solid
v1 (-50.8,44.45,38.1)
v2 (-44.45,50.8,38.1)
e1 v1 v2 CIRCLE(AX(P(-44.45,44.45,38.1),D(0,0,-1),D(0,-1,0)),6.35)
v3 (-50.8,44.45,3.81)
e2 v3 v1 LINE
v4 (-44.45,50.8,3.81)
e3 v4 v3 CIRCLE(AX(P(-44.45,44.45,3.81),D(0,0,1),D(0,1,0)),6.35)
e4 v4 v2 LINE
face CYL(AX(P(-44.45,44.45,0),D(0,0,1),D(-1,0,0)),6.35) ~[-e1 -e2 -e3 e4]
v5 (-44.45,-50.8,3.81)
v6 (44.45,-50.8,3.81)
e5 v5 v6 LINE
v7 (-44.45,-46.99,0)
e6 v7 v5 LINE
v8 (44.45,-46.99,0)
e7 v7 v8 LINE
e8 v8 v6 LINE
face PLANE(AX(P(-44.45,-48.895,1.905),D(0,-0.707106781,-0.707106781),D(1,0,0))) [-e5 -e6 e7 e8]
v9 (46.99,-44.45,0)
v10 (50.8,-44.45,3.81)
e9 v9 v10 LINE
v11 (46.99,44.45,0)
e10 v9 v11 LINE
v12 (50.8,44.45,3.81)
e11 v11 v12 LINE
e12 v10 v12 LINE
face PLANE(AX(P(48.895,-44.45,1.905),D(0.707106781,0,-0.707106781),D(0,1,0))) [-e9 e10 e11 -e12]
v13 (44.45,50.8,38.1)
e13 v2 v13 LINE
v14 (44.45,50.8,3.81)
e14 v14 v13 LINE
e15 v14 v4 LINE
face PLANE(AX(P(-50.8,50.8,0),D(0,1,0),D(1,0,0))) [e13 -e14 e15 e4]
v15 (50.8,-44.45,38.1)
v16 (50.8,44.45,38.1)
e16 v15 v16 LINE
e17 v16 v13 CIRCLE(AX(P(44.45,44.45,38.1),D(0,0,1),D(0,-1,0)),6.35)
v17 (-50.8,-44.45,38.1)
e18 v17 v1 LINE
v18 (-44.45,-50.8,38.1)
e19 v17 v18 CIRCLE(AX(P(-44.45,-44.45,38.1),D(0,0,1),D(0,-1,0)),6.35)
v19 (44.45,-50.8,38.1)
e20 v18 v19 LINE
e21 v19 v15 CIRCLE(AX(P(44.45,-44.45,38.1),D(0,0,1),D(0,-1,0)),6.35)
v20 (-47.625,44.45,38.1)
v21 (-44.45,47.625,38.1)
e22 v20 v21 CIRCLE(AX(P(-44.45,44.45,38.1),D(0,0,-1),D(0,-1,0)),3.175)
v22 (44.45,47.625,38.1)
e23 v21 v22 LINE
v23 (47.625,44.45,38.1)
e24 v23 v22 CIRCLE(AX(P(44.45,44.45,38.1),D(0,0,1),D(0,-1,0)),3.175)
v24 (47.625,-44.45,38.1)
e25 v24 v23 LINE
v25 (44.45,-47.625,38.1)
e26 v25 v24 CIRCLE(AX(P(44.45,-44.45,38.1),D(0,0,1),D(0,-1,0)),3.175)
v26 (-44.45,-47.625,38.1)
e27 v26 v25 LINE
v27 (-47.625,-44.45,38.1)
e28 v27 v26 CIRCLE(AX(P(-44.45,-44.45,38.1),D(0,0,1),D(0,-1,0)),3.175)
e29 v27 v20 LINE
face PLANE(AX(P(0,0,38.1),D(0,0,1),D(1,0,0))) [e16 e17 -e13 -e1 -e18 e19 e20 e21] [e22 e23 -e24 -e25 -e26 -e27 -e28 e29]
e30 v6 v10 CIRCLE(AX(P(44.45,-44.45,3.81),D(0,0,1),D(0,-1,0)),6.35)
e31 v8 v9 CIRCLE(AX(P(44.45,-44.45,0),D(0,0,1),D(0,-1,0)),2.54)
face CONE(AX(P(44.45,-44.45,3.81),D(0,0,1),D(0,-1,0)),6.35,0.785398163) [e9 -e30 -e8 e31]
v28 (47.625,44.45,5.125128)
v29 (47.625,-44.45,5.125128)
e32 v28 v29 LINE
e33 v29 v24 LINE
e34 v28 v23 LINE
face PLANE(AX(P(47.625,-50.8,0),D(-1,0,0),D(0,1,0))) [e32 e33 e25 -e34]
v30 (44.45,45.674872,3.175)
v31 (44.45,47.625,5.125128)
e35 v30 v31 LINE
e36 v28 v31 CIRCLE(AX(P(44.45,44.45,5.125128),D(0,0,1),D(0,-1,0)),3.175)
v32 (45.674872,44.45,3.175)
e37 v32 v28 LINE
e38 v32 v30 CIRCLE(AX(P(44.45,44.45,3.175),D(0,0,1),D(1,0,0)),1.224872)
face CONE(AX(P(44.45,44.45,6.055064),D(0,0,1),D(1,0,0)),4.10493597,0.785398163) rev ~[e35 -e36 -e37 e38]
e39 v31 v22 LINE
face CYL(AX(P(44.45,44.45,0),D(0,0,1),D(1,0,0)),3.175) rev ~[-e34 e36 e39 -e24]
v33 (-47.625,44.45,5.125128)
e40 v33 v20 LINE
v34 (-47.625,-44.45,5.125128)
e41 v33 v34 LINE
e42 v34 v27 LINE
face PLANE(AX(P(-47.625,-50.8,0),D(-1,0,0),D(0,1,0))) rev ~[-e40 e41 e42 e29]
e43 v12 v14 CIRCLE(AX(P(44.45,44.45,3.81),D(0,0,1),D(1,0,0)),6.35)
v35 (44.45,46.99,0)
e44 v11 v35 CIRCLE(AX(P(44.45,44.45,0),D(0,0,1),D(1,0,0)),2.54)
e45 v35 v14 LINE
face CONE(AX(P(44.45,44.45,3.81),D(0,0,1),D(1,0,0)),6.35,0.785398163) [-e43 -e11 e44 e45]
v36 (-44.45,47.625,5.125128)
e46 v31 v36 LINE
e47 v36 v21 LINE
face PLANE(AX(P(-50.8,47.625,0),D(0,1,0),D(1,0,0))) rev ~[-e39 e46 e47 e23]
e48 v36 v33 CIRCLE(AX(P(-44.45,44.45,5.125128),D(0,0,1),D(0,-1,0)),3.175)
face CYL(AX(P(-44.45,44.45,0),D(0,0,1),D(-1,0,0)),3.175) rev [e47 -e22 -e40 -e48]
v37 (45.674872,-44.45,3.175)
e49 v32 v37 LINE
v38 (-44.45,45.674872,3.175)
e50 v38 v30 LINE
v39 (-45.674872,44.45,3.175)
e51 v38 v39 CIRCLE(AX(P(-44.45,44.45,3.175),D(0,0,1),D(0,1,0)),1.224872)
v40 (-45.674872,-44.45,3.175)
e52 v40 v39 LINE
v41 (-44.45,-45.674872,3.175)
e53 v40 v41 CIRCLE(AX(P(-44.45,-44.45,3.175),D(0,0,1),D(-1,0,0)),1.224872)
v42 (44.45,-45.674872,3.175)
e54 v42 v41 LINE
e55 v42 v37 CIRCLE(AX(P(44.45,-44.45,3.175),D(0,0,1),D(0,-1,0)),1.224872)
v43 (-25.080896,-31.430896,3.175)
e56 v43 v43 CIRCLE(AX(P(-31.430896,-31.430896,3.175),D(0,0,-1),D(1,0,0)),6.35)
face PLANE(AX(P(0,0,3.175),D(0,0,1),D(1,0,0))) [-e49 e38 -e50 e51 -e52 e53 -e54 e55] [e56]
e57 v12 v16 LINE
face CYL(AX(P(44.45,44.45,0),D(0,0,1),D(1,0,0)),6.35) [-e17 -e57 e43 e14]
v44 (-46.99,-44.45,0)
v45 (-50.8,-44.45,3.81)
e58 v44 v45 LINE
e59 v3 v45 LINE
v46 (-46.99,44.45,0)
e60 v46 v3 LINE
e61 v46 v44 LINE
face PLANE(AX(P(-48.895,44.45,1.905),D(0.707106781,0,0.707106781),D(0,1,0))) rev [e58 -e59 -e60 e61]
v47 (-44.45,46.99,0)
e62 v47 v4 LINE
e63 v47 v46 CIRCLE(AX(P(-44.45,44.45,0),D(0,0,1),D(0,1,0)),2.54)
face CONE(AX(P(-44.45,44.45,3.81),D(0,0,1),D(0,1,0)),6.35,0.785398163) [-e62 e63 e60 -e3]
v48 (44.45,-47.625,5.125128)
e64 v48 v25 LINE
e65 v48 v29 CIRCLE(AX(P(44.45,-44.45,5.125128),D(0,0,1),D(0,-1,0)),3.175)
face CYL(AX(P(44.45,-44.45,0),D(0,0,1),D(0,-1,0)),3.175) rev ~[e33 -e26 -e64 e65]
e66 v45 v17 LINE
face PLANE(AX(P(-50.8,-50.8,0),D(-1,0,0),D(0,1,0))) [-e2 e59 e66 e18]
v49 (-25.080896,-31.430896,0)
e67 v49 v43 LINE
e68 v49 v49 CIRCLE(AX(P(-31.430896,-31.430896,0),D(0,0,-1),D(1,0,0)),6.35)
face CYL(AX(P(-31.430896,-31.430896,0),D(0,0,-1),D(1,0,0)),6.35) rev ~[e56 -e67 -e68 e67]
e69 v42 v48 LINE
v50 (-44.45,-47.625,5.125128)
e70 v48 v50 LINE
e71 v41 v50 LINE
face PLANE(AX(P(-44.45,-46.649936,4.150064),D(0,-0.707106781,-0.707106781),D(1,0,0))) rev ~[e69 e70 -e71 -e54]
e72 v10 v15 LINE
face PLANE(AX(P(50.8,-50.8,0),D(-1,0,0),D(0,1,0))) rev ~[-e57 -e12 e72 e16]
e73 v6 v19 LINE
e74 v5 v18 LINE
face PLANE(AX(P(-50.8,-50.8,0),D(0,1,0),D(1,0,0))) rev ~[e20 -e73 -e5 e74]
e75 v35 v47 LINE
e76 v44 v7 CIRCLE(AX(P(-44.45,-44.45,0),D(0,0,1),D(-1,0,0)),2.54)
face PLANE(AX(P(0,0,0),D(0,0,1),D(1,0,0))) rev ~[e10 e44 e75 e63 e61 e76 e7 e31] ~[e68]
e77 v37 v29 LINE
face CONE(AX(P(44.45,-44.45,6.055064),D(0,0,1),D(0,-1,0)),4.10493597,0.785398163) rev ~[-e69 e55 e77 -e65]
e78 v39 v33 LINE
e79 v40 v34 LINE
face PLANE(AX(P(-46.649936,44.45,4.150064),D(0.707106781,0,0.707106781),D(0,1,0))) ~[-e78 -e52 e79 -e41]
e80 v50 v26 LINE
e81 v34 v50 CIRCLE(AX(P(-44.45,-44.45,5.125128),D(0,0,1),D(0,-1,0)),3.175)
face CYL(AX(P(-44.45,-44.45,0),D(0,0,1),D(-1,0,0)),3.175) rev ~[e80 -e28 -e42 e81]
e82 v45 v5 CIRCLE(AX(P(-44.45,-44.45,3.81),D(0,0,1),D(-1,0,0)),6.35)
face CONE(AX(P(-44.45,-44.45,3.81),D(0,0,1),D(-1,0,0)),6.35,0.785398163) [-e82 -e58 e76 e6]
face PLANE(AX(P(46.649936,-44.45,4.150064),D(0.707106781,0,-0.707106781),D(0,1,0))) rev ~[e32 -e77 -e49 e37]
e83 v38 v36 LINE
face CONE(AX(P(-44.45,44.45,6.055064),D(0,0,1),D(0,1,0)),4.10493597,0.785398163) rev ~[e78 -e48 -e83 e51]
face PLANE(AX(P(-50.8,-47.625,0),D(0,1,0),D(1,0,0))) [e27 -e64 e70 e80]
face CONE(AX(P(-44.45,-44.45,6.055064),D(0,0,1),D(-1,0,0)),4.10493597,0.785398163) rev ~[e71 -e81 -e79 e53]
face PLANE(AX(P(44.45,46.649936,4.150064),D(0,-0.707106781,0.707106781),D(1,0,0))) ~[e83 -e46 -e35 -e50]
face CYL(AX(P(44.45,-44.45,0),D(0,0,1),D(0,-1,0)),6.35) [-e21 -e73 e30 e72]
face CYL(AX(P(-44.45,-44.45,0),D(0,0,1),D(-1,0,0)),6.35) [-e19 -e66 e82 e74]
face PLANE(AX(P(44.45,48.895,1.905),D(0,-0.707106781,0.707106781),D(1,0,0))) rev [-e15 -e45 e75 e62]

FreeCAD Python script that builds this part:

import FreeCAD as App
import Part
import Sketcher

V = App.Vector
Q = App.Units.Quantity


def edges_at(feature, points):
    """Names of the edges that pass closest to the given points."""
    edges = feature.Shape.Edges
    near = lambda p: min(range(len(edges)), key=lambda i: edges[i].distToShape(Part.Vertex(*p))[0])
    return sorted({f"Edge{near(p) + 1}" for p in points})


def faces_at(feature, points):
    """Names of the faces that lie closest to the given points."""
    faces = feature.Shape.Faces
    near = lambda p: min(range(len(faces)), key=lambda i: faces[i].distToShape(Part.Vertex(*p))[0])
    return sorted({f"Face{near(p) + 1}" for p in points})

doc = App.newDocument("Part")
params = doc.addObject("Spreadsheet::Sheet", "Params")
for row, (alias, value) in enumerate([
    ("sketch1_width", "4 in"),
    ("pad1_length", "1.5 in"),
    ("fillet_radius", "0.25 in"),
    ("chamfer_size", "0.15 in"),
    ("thickness_wall", "0.125 in"),
    ("sketch2_diameter", "0.5 in"),
], start=1):
    params.set(f"A{row}", alias)
    params.set(f"B{row}", "=" + value)
    params.setAlias(f"B{row}", alias)

body = doc.addObject("PartDesign::Body", "Body")

# Sketch on XY plane
sketch1 = doc.addObject("Sketcher::SketchObject", "Sketch")
body.addObject(sketch1)
sketch1.AttachmentSupport = (doc.XY_Plane, [""])
sketch1.MapMode = "FlatFace"
sketch1.addGeometry([
    Part.LineSegment(V(-51, 51, 0), V(-51, -51, 0)),
    Part.LineSegment(V(-51, -51, 0), V(51, -51, 0)),
    Part.LineSegment(V(51, -51, 0), V(51, 51, 0)),
    Part.LineSegment(V(51, 51, 0), V(-51, 51, 0)),
], False)
sketch1.addConstraint([
    Sketcher.Constraint("Coincident", 0, 2, 1, 1),
    Sketcher.Constraint("Coincident", 1, 2, 2, 1),
    Sketcher.Constraint("Coincident", 2, 2, 3, 1),
    Sketcher.Constraint("Coincident", 3, 2, 0, 1),
    Sketcher.Constraint("Vertical", 0),
    Sketcher.Constraint("Horizontal", 1),
    Sketcher.Constraint("Vertical", 2),
    Sketcher.Constraint("Horizontal", 3),
    Sketcher.Constraint("Symmetric", 0, 2, 2, 2, -1, 1),
    Sketcher.Constraint("Equal", 3, 0),
    Sketcher.Constraint("DistanceX", 1, 1, 1, 2, Q("4 in")),
])
sketch1.setExpression("Constraints[10]", "Params.sketch1_width")
pad1 = doc.addObject("PartDesign::Pad", "Pad")
body.addObject(pad1)
pad1.Profile = sketch1
pad1.setExpression("Length", "Params.pad1_length")
doc.recompute()

fillet = doc.addObject("PartDesign::Fillet", "Fillet")
body.addObject(fillet)
fillet.Base = (pad1, edges_at(pad1, [
    (50.8, -50.8, 19.05),
    (50.8, 50.8, 19.05),
    (-50.8, 50.8, 19.05),
    (-50.8, -50.8, 19.05),
]))
fillet.setExpression("Radius", "Params.fillet_radius")
doc.recompute()

chamfer = doc.addObject("PartDesign::Chamfer", "Chamfer")
body.addObject(chamfer)
chamfer.Base = (fillet, edges_at(fillet, [(50.8, 0, 0)]))
chamfer.setExpression("Size", "Params.chamfer_size")
doc.recompute()

thickness = doc.addObject("PartDesign::Thickness", "Thickness")
body.addObject(thickness)
thickness.Base = (chamfer, faces_at(chamfer, [(0, 0, 38.1)]))
thickness.setExpression("Value", "Params.thickness_wall")
thickness.Reversed = True
thickness.Join = "Arc"

# Sketch on XY plane
sketch2 = doc.addObject("Sketcher::SketchObject", "Sketch001")
body.addObject(sketch2)
sketch2.AttachmentSupport = (doc.XY_Plane, [""])
sketch2.MapMode = "FlatFace"
sketch2.addGeometry(Part.Circle(V(-31, -31, 0), V(0, 0, 1), 6), False)
sketch2.addConstraint([
    Sketcher.Constraint("Diameter", 0, Q("0.5 in")),
    Sketcher.Constraint("DistanceX", 0, 3, -1, 1, Q("31.430896 mm")),
    Sketcher.Constraint("DistanceY", 0, 3, -1, 1, Q("31.430896 mm")),
])
sketch2.setExpression("Constraints[0]", "Params.sketch2_diameter")
pocket1 = doc.addObject("PartDesign::Pocket", "Pocket")
body.addObject(pocket1)
pocket1.Profile = sketch2
pocket1.Type = "ThroughAll"
pocket1.Reversed = True

doc.recompute()
